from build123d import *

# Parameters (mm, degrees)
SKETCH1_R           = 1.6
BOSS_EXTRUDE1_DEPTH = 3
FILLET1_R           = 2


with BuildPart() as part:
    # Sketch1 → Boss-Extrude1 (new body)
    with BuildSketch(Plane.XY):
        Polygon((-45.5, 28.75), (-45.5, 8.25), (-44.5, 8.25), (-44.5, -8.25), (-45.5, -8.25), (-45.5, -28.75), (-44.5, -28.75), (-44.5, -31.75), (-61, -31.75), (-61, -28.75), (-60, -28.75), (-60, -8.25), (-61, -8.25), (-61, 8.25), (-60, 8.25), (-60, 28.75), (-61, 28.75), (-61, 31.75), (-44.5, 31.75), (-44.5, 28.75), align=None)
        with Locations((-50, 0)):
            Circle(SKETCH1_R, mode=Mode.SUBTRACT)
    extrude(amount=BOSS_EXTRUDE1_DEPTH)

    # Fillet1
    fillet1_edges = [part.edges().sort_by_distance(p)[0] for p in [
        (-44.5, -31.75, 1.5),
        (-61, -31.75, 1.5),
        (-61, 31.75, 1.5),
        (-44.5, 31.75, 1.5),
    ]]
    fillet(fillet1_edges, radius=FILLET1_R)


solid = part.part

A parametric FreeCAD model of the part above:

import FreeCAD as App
import Part
import Sketcher

V = App.Vector
Q = App.Units.Quantity


def edges_at(feature, points):
    """Names of the edges that pass closest to the given points."""
    edges = feature.Shape.Edges
    near = lambda p: min(range(len(edges)), key=lambda i: edges[i].distToShape(Part.Vertex(*p))[0])
    return sorted({f"Edge{near(p) + 1}" for p in points})


def add_polygon(sketch, points):
    """Adds a closed chain of lines whose ends are joined by coincident constraints."""
    first, n = sketch.GeometryCount, len(points)
    for a, b in zip(points, points[1:] + points[:1]):
        sketch.addGeometry(Part.LineSegment(App.Vector(*a, 0), App.Vector(*b, 0)), False)
    for i in range(n):
        sketch.addConstraint(Sketcher.Constraint("Coincident", first + i, 2, first + (i + 1) % n, 1))

doc = App.newDocument("Part")
body = doc.addObject("PartDesign::Body", "Body")

sketch1 = doc.addObject("Sketcher::SketchObject", "Sketch")
body.addObject(sketch1)
sketch1.AttachmentSupport = (doc.XY_Plane, [""])
sketch1.MapMode = "FlatFace"
add_polygon(sketch1, [(-45.5, 8.2), (-45.5, 28.8), (-44.5, 28.8), (-44.5, 31.8), (-61, 31.8), (-61, 28.8), (-60, 28.8), (-60, 8.2), (-61, 8.2), (-61, -8.2), (-60, -8.2), (-60, -28.8), (-61, -28.8), (-61, -31.8), (-44.5, -31.8), (-44.5, -28.8), (-45.5, -28.8), (-45.5, -8.2), (-44.5, -8.2), (-44.5, 8.2)])
sketch1.addGeometry(Part.Circle(V(-50, 0, 0), V(0, 0, 1), 1.6), False)
sketch1.addConstraint([
    Sketcher.Constraint("Vertical", 0),
    Sketcher.Constraint("Horizontal", 1),
    Sketcher.Constraint("Vertical", 2),
    Sketcher.Constraint("Horizontal", 3),
    Sketcher.Constraint("Vertical", 4),
    Sketcher.Constraint("Horizontal", 5),
    Sketcher.Constraint("Vertical", 6),
    Sketcher.Constraint("Horizontal", 7),
    Sketcher.Constraint("Vertical", 8),
    Sketcher.Constraint("Horizontal", 9),
    Sketcher.Constraint("Vertical", 10),
    Sketcher.Constraint("Horizontal", 11),
    Sketcher.Constraint("Vertical", 12),
    Sketcher.Constraint("Horizontal", 13),
    Sketcher.Constraint("Vertical", 14),
    Sketcher.Constraint("Horizontal", 15),
    Sketcher.Constraint("Vertical", 16),
    Sketcher.Constraint("Horizontal", 17),
    Sketcher.Constraint("Vertical", 18),
    Sketcher.Constraint("Horizontal", 19),
    Sketcher.Constraint("Symmetric", 6, 2, 9, 2, -1),
    Sketcher.Constraint("Symmetric", 4, 2, 11, 2, -1),
    Sketcher.Constraint("Symmetric", 2, 2, 13, 2, -1),
    Sketcher.Constraint("Symmetric", 0, 2, 15, 2, -1),
    Sketcher.Constraint("PointOnObject", 20, 3, -1),
    Sketcher.Constraint("Horizontal", 1, 2, 4, 2),
    Sketcher.Constraint("Horizontal", 9, 2, 16, 2),
    Sketcher.Constraint("Horizontal", 7, 2, 18, 2),
    Sketcher.Constraint("Vertical", 4, 2, 7, 2),
    Sketcher.Constraint("Vertical", 14, 2, 17, 2),
    Sketcher.Constraint("Equal", 1, 5),
    Sketcher.Constraint("Equal", 13, 8),
    Sketcher.Constraint("Diameter", 20, Q("3.2 mm")),
    Sketcher.Constraint("DistanceX", 1, 1, 1, 2, Q("1 mm")),
    Sketcher.Constraint("DistanceY", 2, 1, 2, 2, Q("3 mm")),
    Sketcher.Constraint("DistanceX", 3, 2, 3, 1, Q("16.5 mm")),
    Sketcher.Constraint("DistanceY", 0, 1, 0, 2, Q("20.5 mm")),
    Sketcher.Constraint("DistanceX", 20, 3, -1, 1, Q("50 mm")),
    Sketcher.Constraint("DistanceX", 3, 2, -1, 1, Q("61 mm")),
])
pad1 = doc.addObject("PartDesign::Pad", "Pad")
body.addObject(pad1)
pad1.Profile = sketch1
pad1.Length = 3
doc.recompute()

fillet = doc.addObject("PartDesign::Fillet", "Fillet")
body.addObject(fillet)
fillet.Base = (pad1, edges_at(pad1, [
    (-44.5, -31.75, 1.5),
    (-61, -31.75, 1.5),
    (-61, 31.75, 1.5),
    (-44.5, 31.75, 1.5),
]))
fillet.Radius = 2

doc.recompute()
